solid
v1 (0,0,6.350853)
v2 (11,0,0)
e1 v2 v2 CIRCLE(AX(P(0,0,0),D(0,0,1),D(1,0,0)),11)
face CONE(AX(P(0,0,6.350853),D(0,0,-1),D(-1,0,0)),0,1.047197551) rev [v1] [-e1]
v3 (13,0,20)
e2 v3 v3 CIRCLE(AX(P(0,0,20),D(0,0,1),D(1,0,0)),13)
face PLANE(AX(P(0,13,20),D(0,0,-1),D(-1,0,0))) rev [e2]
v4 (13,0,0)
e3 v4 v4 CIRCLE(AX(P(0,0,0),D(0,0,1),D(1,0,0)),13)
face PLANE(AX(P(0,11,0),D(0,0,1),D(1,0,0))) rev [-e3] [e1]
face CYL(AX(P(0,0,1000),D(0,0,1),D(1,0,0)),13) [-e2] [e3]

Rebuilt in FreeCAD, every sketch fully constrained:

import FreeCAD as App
import Part
import Sketcher
from FreeCAD import Vector
Q = App.Units.Quantity


def add_polygon(sketch, points):
    """Adds a closed chain of lines whose ends are joined by coincident constraints."""
    first, n = sketch.GeometryCount, len(points)
    for a, b in zip(points, points[1:] + points[:1]):
        sketch.addGeometry(Part.LineSegment(App.Vector(*a, 0), App.Vector(*b, 0)), False)
    for i in range(n):
        sketch.addConstraint(Sketcher.Constraint("Coincident", first + i, 2, first + (i + 1) % n, 1))

doc = App.newDocument("Part")
body = doc.addObject("PartDesign::Body", "Body")

# Sketch on YZ plane
sketch1 = body.newObject("Sketcher::SketchObject", "Sketch")
sketch1.AttachmentSupport = (doc.getObject("YZ_Plane"), [""])
sketch1.MapMode = "FlatFace"
add_polygon(sketch1, [(0, 6.4), (11, 0), (13, 0), (13, 20), (0, 20)])  # lines 0-4
sketch1.addConstraint([
    Sketcher.Constraint("Horizontal", 1),
    Sketcher.Constraint("Vertical", 2),
    Sketcher.Constraint("Horizontal", 3),
    Sketcher.Constraint("Vertical", 4),
    Sketcher.Constraint("PointOnObject", 0, 2, -1),
    Sketcher.Constraint("PointOnObject", 3, 2, -2),
    Sketcher.Constraint("DistanceX", 1, 1, 1, 2, 2.0),
    Sketcher.Constraint("DistanceX", 3, 2, 3, 1, 13.0),
    Sketcher.Constraint("DistanceY", 2, 1, 2, 2, 20.0),
    Sketcher.Constraint("Angle", 0, Q("-30 deg")),
])
revolution = body.newObject("PartDesign::Revolution", "Revolution")
revolution.Profile = sketch1
revolution.ReferenceAxis = (sketch1, ["V_Axis"])
revolution.Angle = 360

doc.recompute()
